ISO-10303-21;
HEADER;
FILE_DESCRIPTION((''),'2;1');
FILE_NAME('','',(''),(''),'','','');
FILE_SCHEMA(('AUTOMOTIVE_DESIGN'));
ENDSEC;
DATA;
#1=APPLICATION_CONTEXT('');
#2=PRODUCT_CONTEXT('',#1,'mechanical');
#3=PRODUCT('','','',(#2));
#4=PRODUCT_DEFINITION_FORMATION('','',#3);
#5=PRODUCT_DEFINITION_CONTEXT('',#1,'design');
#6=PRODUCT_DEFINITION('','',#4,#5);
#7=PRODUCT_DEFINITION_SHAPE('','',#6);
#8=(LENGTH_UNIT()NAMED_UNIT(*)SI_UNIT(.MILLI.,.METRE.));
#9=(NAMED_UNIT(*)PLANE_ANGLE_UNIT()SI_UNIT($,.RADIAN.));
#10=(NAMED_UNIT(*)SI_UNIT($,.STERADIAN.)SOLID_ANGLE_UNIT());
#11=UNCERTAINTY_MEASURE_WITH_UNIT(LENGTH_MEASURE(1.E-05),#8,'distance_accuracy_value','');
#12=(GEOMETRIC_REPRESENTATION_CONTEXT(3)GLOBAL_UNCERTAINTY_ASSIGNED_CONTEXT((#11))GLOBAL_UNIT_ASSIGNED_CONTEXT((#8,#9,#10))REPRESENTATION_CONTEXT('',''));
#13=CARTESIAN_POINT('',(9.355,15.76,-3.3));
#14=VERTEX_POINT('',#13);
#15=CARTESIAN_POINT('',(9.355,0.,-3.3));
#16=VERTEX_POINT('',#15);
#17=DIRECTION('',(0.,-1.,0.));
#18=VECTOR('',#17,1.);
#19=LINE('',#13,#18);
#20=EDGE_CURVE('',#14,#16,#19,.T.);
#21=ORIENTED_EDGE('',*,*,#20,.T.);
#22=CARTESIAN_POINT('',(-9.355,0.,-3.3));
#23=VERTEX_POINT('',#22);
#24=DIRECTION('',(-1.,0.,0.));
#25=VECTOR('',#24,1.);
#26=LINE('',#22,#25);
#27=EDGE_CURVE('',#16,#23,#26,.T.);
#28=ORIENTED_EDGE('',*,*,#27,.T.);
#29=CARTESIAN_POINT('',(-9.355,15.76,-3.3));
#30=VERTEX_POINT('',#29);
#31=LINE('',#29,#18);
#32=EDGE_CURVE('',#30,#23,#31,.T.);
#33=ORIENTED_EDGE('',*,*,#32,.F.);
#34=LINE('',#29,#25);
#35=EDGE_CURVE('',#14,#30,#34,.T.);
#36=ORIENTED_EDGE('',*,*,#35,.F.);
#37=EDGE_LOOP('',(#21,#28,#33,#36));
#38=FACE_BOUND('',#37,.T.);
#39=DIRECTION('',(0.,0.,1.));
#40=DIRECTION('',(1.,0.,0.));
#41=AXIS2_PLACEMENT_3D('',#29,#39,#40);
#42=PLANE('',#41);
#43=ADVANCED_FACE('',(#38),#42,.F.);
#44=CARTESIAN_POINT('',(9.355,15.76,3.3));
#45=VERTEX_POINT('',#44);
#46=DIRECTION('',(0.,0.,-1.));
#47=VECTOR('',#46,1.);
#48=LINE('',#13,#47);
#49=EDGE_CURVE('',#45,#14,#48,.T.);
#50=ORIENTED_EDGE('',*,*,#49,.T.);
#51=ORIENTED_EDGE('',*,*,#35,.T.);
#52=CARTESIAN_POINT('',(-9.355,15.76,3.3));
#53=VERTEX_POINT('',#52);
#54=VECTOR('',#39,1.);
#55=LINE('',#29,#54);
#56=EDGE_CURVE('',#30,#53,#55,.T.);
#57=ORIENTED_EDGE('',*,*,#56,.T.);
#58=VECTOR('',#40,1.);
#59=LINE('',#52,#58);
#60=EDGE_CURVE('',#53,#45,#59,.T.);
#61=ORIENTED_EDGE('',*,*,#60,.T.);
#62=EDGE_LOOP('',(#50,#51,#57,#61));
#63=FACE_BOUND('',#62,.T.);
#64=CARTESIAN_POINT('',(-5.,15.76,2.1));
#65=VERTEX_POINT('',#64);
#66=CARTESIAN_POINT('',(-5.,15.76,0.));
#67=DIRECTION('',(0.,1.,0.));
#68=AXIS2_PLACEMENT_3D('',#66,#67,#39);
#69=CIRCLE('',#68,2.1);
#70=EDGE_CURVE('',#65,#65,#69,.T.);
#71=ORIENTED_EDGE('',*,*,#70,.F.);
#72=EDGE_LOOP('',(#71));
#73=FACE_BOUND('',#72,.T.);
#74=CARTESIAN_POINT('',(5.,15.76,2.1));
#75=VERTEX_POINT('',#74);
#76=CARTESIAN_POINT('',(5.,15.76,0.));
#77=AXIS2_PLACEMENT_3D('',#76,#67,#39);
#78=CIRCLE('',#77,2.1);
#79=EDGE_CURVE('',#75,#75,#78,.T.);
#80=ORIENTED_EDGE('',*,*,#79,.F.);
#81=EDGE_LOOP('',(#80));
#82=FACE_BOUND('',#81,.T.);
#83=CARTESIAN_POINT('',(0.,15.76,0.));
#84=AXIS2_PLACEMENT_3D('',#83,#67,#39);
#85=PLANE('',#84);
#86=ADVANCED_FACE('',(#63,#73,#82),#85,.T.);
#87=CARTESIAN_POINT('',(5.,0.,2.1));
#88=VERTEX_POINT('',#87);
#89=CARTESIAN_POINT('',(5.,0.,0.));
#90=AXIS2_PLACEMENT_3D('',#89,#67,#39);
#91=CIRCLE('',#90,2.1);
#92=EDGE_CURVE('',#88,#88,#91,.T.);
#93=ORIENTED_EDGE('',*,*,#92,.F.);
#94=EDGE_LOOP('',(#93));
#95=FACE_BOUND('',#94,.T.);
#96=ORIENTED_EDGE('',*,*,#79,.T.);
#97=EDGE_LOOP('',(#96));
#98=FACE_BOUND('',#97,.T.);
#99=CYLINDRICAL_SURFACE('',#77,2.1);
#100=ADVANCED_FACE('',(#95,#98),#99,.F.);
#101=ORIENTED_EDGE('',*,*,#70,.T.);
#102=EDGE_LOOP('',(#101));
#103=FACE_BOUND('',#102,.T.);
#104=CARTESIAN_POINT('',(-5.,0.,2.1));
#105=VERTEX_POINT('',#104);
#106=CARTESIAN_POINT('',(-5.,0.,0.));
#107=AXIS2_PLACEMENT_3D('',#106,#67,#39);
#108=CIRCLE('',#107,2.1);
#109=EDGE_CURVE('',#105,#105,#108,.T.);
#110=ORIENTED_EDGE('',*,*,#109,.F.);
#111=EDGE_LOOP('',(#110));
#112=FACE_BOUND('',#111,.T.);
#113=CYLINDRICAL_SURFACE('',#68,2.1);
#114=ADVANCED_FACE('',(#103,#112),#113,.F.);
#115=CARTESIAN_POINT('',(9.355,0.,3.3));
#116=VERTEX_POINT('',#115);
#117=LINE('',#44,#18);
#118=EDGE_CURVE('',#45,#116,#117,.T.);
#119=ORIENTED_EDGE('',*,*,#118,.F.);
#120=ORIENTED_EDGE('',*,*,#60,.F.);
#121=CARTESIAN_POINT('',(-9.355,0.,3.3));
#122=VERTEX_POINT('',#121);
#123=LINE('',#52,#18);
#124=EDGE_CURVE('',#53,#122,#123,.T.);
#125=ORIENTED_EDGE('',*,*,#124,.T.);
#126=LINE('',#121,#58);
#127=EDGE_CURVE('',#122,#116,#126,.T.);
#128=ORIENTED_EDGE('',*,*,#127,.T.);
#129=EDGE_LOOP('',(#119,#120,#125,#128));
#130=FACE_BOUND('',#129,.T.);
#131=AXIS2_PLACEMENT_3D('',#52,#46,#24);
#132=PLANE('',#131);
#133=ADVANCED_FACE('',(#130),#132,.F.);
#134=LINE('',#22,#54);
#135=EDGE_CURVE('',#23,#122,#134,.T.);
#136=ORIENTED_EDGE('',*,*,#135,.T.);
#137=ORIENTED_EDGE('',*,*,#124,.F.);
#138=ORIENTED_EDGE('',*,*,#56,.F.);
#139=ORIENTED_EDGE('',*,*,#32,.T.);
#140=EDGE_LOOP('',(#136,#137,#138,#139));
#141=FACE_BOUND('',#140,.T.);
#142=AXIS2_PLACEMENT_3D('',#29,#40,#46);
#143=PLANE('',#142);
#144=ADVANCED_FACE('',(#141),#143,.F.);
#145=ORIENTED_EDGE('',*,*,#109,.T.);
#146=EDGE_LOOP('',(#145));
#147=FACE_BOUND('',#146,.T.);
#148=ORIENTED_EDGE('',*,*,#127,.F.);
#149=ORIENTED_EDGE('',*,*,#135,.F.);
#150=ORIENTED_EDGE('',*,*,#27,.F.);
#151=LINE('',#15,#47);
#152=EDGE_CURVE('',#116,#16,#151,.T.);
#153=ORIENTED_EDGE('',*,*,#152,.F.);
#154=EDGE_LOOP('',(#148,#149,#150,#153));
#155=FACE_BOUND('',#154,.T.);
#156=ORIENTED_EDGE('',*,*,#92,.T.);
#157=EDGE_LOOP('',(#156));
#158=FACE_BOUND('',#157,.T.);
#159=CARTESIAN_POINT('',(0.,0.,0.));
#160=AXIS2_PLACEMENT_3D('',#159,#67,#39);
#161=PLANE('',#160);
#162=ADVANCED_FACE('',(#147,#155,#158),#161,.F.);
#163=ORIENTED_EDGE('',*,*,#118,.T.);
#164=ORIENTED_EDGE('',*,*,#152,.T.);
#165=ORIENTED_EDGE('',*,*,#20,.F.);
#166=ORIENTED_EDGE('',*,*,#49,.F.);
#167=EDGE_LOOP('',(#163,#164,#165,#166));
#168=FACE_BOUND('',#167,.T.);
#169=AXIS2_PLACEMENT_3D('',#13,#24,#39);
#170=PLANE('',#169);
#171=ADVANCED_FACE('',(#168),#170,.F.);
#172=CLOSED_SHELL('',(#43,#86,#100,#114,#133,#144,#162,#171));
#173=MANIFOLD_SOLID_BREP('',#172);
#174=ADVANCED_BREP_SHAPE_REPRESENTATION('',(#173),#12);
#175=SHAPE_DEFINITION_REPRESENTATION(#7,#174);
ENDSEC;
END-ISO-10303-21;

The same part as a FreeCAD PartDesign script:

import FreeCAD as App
import Part
import Sketcher


def add_polygon(sketch, points):
    """Adds a closed chain of lines whose ends are joined by coincident constraints."""
    first, n = sketch.GeometryCount, len(points)
    for a, b in zip(points, points[1:] + points[:1]):
        sketch.addGeometry(Part.LineSegment(App.Vector(*a, 0), App.Vector(*b, 0)), False)
    for i in range(n):
        sketch.addConstraint(Sketcher.Constraint("Coincident", first + i, 2, first + (i + 1) % n, 1))

doc = App.newDocument("Part")
params = doc.addObject("Spreadsheet::Sheet", "Params")
for row, (alias, value) in enumerate([
    ("sketch1_height", "6.6 mm"),
    ("sketch1_width", "18.71 mm"),
    ("pad1_length", "15.76 mm"),
    ("sketch2_diameter", "4.2 mm"),
    ("hole_diameter", "4.2 mm"),
], start=1):
    params.set(f"A{row}", alias)
    params.set(f"B{row}", "=" + value)
    params.setAlias(f"B{row}", alias)

body = doc.addObject("PartDesign::Body", "Body")

# Sketch on XZ plane
sketch1 = body.newObject("Sketcher::SketchObject", "Sketch")
sketch1.AttachmentSupport = (doc.getObject("XZ_Plane"), [""])
sketch1.MapMode = "FlatFace"
add_polygon(sketch1, [(-9.355, -3.3), (-9.355, 3.3), (9.355, 3.3), (9.355, -3.3)])  # lines 0-3
sketch1.addConstraint([
    Sketcher.Constraint("Vertical", 0),
    Sketcher.Constraint("Horizontal", 1),
    Sketcher.Constraint("Vertical", 2),
    Sketcher.Constraint("Horizontal", 3),
    Sketcher.Constraint("Symmetric", 0, 2, 2, 2, -1, 1),
    Sketcher.Constraint("DistanceY", 0, 1, 0, 2, 6.6),
    Sketcher.Constraint("DistanceX", 1, 1, 1, 2, 18.71),
])
sketch1.setExpression("Constraints[9]", "Params.sketch1_height")
sketch1.setExpression("Constraints[10]", "Params.sketch1_width")
pad1 = body.newObject("PartDesign::Pad", "Pad")
pad1.Profile = sketch1
pad1.setExpression("Length", "Params.pad1_length")
pad1.Reversed = True

# Sketch on XZ plane
sketch2 = body.newObject("Sketcher::SketchObject", "Sketch001")
sketch2.AttachmentSupport = (doc.getObject("XZ_Plane"), [""])
sketch2.MapMode = "FlatFace"
sketch2.AttachmentOffset = App.Placement(App.Vector(0, 0, -15.76), App.Rotation())
sketch2.addGeometry([
    Part.Circle(App.Vector(5, 0, 0), App.Vector(0, 0, 1), 2.1),
    Part.Circle(App.Vector(-5, 0, 0), App.Vector(0, 0, 1), 2.1),
], False)
sketch2.addConstraint([
    Sketcher.Constraint("Equal", 0, 1),
    Sketcher.Constraint("Symmetric", 0, 3, 1, 3, -1, 1),
    Sketcher.Constraint("PointOnObject", 0, 3, -1),
    Sketcher.Constraint("Diameter", 0, 4.2),
    Sketcher.Constraint("DistanceX", -1, 1, 0, 3, 5.0),
])
sketch2.setExpression("Constraints[3]", "Params.sketch2_diameter")
doc.recompute()
hole = body.newObject("PartDesign::Hole", "Hole")
hole.Profile = sketch2
hole.ThreadType = "None"
hole.setExpression("Diameter", "Params.hole_diameter")
hole.DepthType = "ThroughAll"
hole.Reversed = True

doc.recompute()
